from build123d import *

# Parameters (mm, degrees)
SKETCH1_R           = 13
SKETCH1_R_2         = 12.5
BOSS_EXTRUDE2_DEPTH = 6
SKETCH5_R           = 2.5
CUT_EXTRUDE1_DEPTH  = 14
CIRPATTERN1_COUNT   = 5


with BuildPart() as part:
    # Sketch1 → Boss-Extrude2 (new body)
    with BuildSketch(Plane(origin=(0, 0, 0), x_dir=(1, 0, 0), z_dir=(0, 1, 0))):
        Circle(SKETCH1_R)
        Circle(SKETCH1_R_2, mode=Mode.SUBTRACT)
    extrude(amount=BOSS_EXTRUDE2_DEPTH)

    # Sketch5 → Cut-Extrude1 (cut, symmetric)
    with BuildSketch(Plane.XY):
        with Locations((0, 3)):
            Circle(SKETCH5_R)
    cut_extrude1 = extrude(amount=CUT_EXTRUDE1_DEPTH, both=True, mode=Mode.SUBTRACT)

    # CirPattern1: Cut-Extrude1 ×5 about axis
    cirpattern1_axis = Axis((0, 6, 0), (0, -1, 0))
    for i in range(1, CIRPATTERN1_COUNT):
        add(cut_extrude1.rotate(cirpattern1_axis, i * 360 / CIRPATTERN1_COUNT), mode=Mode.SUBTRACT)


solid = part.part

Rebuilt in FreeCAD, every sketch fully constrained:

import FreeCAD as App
import Part
import Sketcher
Q = App.Units.Quantity

doc = App.newDocument("Part")
params = doc.addObject("Spreadsheet::Sheet", "Params")
for row, (alias, value) in enumerate([
    ("sketch1_diameter", "26 mm"),
    ("sketch1_diameter2", "25 mm"),
    ("pad1_length", "6 mm"),
    ("sketch2_diameter", "5 mm"),
    ("pocket1_length", "28 mm"),
], start=1):
    params.set(f"A{row}", alias)
    params.set(f"B{row}", "=" + value)
    params.setAlias(f"B{row}", alias)

body = doc.addObject("PartDesign::Body", "Body")

sketch1 = body.newObject("Sketcher::SketchObject", "Sketch")
sketch1.AttachmentSupport = (doc.getObject("XZ_Plane"), [""])
sketch1.MapMode = "FlatFace"
sketch1.addGeometry(Part.Circle(App.Vector(0, 0, 0), App.Vector(0, 0, 1), 13), False)
sketch1.addGeometry(Part.Circle(App.Vector(0, 0, 0), App.Vector(0, 0, 1), 12), False)
sketch1.addConstraint(Sketcher.Constraint("Coincident", 0, 3, -1, 1))
sketch1.addConstraint(Sketcher.Constraint("Coincident", 1, 3, -1, 1))
sketch1.addConstraint(Sketcher.Constraint("Diameter", 0, Q("26 mm")))
sketch1.addConstraint(Sketcher.Constraint("Diameter", 1, Q("25 mm")))
sketch1.setExpression("Constraints[2]", "Params.sketch1_diameter")
sketch1.setExpression("Constraints[3]", "Params.sketch1_diameter2")
pad1 = body.newObject("PartDesign::Pad", "Pad")
pad1.Profile = sketch1
pad1.setExpression("Length", "Params.pad1_length")
pad1.Reversed = True

sketch2 = body.newObject("Sketcher::SketchObject", "Sketch001")
sketch2.AttachmentSupport = (doc.getObject("XY_Plane"), [""])
sketch2.MapMode = "FlatFace"
sketch2.addGeometry(Part.Circle(App.Vector(0, 3, 0), App.Vector(0, 0, 1), 2.5), False)
sketch2.addConstraint(Sketcher.Constraint("PointOnObject", 0, 3, -2))
sketch2.addConstraint(Sketcher.Constraint("Diameter", 0, Q("5 mm")))
sketch2.addConstraint(Sketcher.Constraint("DistanceY", -1, 1, 0, 3, Q("3 mm")))
sketch2.setExpression("Constraints[1]", "Params.sketch2_diameter")
pocket1 = body.newObject("PartDesign::Pocket", "Pocket")
pocket1.Profile = sketch2
pocket1.setExpression("Length", "Params.pocket1_length")
pocket1.Midplane = True
doc.recompute()

polarpattern = body.newObject("PartDesign::PolarPattern", "PolarPattern")
polarpattern.Originals = [pocket1]
polarpattern.Axis = (doc.getObject("Y_Axis"), [""])
polarpattern.Angle = 360
polarpattern.Occurrences = 5
body.Tip = polarpattern

doc.recompute()
